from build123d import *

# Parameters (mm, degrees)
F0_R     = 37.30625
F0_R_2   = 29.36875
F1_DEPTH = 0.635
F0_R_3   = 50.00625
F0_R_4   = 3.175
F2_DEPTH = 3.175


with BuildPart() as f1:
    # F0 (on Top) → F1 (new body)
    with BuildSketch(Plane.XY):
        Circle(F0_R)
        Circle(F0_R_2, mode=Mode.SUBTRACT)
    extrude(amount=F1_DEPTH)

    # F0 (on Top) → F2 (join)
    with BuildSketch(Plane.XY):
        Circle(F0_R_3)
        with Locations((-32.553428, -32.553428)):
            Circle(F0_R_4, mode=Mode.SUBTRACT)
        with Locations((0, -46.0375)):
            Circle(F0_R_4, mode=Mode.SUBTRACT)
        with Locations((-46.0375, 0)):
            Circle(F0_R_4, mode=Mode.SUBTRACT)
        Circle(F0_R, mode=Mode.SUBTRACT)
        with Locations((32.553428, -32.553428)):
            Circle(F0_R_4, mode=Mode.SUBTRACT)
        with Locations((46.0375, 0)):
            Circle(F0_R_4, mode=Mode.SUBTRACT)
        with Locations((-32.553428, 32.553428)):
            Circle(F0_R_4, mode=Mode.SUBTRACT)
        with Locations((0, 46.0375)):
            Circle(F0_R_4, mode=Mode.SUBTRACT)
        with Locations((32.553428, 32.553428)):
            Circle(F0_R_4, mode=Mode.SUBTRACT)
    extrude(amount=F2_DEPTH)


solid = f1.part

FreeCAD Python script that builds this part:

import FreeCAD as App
import Part
import Sketcher

V = App.Vector
Q = App.Units.Quantity

doc = App.newDocument("Part")
body = doc.addObject("PartDesign::Body", "Body")

# Sketch on XY plane
sketch1 = doc.addObject("Sketcher::SketchObject", "Sketch")
body.addObject(sketch1)
sketch1.AttachmentSupport = (doc.XY_Plane, [""])
sketch1.MapMode = "FlatFace"
sketch1.addGeometry([
    Part.Circle(V(0, 0, 0), V(0, 0, 1), 37.30625),
    Part.Circle(V(0, 0, 0), V(0, 0, 1), 29.36875),
], False)
sketch1.addConstraint([
    Sketcher.Constraint("Coincident", 0, 3, -1, 1),
    Sketcher.Constraint("Coincident", 1, 3, -1, 1),
    Sketcher.Constraint("Diameter", 0, Q("2.9375 in")),
    Sketcher.Constraint("Diameter", 1, Q("2.3125 in")),
])
pad1 = doc.addObject("PartDesign::Pad", "Pad")
body.addObject(pad1)
pad1.Profile = sketch1
pad1.Length = Q("0.025 in")

# Sketch on XY plane
sketch2 = doc.addObject("Sketcher::SketchObject", "Sketch001")
body.addObject(sketch2)
sketch2.AttachmentSupport = (doc.XY_Plane, [""])
sketch2.MapMode = "FlatFace"
sketch2.addGeometry([
    Part.Circle(V(0, 0, 0), V(0, 0, 1), 50.00625),  # 0
    Part.Circle(V(-32.553428, -32.553428, 0), V(0, 0, 1), 3.175),  # 1
    Part.Circle(V(0, -46.0375, 0), V(0, 0, 1), 3.175),  # 2
    Part.Circle(V(32.553428, -32.553428, 0), V(0, 0, 1), 3.175),  # 3
    Part.Circle(V(-46.0375, 0, 0), V(0, 0, 1), 3.175),  # 4
    Part.Circle(V(-32.553428, 32.553428, 0), V(0, 0, 1), 3.175),  # 5
    Part.Circle(V(0, 0, 0), V(0, 0, 1), 37.30625),  # 6
    Part.Circle(V(46.0375, 0, 0), V(0, 0, 1), 3.175),  # 7
    Part.Circle(V(0, 46.0375, 0), V(0, 0, 1), 3.175),  # 8
    Part.Circle(V(32.553428, 32.553428, 0), V(0, 0, 1), 3.175),  # 9
], False)
sketch2.addConstraint([
    Sketcher.Constraint("Coincident", 0, 3, -1, 1),
    Sketcher.Constraint("Coincident", 6, 3, -1, 1),
    Sketcher.Constraint("Equal", 1, 2),
    Sketcher.Constraint("Equal", 2, 3),
    Sketcher.Constraint("Equal", 3, 4),
    Sketcher.Constraint("Equal", 4, 5),
    Sketcher.Constraint("Equal", 5, 7),
    Sketcher.Constraint("Equal", 7, 8),
    Sketcher.Constraint("Equal", 8, 9),
    Sketcher.Constraint("Symmetric", 3, 3, 5, 3, -1, 1),
    Sketcher.Constraint("Symmetric", 4, 3, 7, 3, -1, 1),
    Sketcher.Constraint("Symmetric", 2, 3, 8, 3, -1, 1),
    Sketcher.Constraint("Symmetric", 1, 3, 9, 3, -1, 1),
    Sketcher.Constraint("Symmetric", 1, 3, 3, 3, -2),
    Sketcher.Constraint("PointOnObject", 2, 3, -2),
    Sketcher.Constraint("PointOnObject", 4, 3, -1),
    Sketcher.Constraint("Diameter", 1, Q("0.25 in")),
    Sketcher.Constraint("Diameter", 0, Q("3.9375 in")),
    Sketcher.Constraint("Diameter", 6, Q("2.9375 in")),
    Sketcher.Constraint("DistanceY", 2, 3, -1, 1, Q("1.8125 in")),
    Sketcher.Constraint("DistanceX", 4, 3, -1, 1, Q("1.8125 in")),
    Sketcher.Constraint("DistanceX", 1, 3, -1, 1, 32.553428),
    Sketcher.Constraint("DistanceY", 1, 3, -1, 1, 32.553428),
])
pad2 = doc.addObject("PartDesign::Pad", "Pad001")
body.addObject(pad2)
pad2.Profile = sketch2
pad2.Length = Q("0.125 in")

doc.recompute()
